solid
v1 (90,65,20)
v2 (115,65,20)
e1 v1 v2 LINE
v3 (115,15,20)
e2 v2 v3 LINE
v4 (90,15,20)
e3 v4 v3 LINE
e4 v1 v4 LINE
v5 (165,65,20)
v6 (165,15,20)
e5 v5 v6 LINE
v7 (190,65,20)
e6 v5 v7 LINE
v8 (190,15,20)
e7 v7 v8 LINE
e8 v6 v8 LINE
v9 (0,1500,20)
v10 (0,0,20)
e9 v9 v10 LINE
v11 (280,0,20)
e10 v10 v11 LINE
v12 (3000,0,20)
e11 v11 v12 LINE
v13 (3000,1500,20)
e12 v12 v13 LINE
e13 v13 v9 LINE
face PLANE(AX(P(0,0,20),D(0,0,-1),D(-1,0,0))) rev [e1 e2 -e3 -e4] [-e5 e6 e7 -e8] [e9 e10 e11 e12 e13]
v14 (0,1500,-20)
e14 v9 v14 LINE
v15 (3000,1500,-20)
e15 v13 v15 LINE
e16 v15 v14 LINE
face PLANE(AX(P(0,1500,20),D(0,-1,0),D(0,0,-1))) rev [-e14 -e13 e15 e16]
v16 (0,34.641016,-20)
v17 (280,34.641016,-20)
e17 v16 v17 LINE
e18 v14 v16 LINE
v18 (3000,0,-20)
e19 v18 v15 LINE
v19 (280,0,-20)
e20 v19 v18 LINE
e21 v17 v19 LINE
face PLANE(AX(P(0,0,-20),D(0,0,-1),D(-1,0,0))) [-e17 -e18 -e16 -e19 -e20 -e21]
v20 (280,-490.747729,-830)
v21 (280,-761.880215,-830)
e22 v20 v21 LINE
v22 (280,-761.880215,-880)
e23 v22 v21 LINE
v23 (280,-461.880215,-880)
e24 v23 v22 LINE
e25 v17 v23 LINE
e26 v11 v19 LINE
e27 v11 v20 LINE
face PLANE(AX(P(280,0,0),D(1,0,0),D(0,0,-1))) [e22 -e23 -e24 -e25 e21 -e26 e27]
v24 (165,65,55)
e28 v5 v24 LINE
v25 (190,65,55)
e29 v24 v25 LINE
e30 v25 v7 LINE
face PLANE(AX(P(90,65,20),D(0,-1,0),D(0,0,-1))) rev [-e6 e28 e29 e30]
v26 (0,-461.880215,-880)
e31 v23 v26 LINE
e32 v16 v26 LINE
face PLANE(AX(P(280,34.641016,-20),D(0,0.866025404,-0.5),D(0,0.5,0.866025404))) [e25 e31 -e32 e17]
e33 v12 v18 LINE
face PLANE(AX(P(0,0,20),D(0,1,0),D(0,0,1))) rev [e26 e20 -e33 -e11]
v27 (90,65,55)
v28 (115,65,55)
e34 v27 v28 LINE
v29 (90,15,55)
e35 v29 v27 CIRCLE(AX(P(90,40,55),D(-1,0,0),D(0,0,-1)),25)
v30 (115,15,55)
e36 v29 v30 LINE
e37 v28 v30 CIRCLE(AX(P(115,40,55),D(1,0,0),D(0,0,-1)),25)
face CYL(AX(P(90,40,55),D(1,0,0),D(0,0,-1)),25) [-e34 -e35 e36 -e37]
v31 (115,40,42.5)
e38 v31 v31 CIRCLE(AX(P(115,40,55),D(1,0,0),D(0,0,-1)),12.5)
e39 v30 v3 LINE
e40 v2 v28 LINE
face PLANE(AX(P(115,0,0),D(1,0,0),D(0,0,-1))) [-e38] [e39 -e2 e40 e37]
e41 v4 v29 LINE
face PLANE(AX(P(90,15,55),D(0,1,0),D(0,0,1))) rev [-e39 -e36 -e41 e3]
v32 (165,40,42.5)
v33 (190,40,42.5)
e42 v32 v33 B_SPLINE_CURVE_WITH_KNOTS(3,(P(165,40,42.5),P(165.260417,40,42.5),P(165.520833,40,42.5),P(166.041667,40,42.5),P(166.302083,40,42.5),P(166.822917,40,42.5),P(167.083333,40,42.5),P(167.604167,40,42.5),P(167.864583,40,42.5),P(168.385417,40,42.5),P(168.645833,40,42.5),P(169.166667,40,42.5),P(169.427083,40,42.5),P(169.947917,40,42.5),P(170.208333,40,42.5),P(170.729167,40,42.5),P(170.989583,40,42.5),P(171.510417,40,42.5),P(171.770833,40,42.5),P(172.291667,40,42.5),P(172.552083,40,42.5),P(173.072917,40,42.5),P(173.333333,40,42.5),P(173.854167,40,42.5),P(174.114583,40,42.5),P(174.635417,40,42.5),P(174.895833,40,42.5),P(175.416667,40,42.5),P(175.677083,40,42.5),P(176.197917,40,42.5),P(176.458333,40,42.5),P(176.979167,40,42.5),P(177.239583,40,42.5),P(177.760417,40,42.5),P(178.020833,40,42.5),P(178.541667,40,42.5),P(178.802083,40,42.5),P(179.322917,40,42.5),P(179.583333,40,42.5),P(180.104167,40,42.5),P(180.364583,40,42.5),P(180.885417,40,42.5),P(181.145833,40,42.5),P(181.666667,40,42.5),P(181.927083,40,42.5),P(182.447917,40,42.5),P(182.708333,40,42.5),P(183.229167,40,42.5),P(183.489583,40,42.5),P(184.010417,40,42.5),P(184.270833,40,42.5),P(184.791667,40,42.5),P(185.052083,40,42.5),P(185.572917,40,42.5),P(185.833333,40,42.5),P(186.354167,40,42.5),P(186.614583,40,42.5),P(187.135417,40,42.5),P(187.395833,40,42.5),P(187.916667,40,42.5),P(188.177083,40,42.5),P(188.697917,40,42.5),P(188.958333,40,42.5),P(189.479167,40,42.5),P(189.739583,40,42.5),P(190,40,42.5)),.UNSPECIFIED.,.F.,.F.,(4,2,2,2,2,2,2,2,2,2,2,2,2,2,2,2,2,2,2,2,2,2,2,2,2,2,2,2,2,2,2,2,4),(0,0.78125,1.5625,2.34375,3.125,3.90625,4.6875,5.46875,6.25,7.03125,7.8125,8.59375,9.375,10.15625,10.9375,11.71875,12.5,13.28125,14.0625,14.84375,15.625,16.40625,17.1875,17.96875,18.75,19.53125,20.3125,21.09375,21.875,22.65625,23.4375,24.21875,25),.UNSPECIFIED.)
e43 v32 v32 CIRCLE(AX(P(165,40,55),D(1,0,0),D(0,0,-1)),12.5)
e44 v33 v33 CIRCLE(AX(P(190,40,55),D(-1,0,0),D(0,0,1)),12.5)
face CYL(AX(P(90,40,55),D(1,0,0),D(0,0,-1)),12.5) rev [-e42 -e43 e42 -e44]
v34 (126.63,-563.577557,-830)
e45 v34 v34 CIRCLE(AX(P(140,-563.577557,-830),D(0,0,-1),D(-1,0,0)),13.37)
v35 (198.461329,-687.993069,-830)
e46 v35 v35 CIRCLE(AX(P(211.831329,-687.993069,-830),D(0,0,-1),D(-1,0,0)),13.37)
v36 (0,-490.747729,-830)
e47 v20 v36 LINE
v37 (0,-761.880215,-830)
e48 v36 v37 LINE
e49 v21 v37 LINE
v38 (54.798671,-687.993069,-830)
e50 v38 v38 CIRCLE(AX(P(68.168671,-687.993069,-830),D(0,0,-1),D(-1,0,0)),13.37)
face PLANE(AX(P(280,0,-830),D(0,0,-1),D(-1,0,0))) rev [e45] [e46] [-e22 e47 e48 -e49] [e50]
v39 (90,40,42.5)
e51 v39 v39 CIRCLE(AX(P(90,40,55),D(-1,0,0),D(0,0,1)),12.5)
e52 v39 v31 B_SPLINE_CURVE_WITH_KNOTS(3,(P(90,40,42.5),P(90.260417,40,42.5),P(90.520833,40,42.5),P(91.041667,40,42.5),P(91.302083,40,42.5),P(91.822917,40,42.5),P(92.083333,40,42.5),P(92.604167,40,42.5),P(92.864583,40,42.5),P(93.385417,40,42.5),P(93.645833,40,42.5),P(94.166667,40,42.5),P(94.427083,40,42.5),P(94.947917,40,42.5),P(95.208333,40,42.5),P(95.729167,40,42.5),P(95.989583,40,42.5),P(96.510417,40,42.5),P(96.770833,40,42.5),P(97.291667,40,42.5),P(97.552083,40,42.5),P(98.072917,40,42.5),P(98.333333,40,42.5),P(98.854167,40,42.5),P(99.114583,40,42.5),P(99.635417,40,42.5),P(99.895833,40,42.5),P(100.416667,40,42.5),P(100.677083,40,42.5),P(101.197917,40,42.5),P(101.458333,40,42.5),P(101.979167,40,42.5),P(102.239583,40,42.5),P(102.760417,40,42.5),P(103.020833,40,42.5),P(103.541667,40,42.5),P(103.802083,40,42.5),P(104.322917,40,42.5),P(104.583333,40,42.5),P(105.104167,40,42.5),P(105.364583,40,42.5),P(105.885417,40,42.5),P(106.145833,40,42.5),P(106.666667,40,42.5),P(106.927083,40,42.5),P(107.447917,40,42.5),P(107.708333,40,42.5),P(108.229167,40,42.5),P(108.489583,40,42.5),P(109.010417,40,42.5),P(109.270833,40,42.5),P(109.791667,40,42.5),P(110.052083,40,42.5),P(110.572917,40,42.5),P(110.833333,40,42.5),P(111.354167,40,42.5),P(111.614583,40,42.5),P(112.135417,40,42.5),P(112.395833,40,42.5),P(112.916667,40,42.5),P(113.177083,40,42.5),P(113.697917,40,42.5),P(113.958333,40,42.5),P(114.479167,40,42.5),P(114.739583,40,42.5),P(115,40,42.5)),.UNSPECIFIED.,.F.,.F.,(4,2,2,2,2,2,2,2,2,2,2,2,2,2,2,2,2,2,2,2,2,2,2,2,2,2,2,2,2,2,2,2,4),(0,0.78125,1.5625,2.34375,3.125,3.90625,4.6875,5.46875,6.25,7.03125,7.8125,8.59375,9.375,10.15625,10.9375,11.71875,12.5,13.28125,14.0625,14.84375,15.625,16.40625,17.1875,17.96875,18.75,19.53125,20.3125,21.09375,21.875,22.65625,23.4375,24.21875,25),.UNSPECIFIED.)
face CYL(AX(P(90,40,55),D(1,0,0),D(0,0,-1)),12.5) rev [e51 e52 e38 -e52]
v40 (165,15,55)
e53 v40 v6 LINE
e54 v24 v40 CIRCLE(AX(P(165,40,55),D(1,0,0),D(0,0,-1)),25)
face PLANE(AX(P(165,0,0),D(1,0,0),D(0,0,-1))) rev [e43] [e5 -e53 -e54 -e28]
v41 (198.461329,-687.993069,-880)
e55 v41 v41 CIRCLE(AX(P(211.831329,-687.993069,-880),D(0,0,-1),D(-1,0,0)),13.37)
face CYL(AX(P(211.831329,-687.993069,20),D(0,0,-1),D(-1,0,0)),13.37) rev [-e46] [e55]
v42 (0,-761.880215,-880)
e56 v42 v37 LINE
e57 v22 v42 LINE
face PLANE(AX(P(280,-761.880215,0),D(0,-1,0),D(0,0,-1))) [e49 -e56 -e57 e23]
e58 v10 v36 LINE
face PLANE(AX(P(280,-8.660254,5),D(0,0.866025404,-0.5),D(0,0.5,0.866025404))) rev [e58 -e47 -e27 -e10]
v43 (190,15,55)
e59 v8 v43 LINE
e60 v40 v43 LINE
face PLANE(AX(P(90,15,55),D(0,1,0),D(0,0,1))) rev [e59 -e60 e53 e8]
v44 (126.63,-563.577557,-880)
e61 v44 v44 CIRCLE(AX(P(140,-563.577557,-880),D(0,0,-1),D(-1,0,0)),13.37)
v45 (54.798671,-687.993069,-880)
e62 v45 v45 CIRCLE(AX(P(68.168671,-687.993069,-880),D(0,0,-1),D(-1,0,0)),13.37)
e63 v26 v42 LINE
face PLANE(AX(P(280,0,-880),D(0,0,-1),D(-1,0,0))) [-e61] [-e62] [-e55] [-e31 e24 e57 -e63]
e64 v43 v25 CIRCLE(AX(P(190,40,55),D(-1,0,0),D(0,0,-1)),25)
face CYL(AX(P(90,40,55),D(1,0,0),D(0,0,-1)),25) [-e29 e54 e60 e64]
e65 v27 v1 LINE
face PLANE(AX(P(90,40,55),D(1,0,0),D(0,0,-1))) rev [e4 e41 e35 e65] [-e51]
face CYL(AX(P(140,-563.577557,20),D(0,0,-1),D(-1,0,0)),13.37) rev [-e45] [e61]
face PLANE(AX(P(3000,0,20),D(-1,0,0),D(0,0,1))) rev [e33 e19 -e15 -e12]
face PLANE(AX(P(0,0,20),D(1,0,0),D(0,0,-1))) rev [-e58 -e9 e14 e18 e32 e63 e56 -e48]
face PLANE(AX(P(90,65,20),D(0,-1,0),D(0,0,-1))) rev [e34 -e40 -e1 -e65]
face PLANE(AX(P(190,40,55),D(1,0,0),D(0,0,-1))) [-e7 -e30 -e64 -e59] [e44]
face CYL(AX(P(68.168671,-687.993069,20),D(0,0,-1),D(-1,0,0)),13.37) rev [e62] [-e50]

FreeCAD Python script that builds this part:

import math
import FreeCAD as App
import Part
import Sketcher

V = App.Vector
Q = App.Units.Quantity

doc = App.newDocument("Part")
body = doc.addObject("PartDesign::Body", "Body")

# Sketch on XY plane
sketch1 = doc.addObject("Sketcher::SketchObject", "Sketch")
body.addObject(sketch1)
sketch1.AttachmentSupport = (doc.XY_Plane, [""])
sketch1.MapMode = "FlatFace"
sketch1.addGeometry([
    Part.LineSegment(V(0, 1500, 0), V(0, 0, 0)),
    Part.LineSegment(V(0, 0, 0), V(3000, 0, 0)),
    Part.LineSegment(V(3000, 0, 0), V(3000, 1500, 0)),
    Part.LineSegment(V(3000, 1500, 0), V(0, 1500, 0)),
], False)
sketch1.addConstraint([
    Sketcher.Constraint("Coincident", 0, 2, 1, 1),
    Sketcher.Constraint("Coincident", 1, 2, 2, 1),
    Sketcher.Constraint("Coincident", 2, 2, 3, 1),
    Sketcher.Constraint("Coincident", 3, 2, 0, 1),
    Sketcher.Constraint("Vertical", 0),
    Sketcher.Constraint("Horizontal", 1),
    Sketcher.Constraint("Vertical", 2),
    Sketcher.Constraint("Horizontal", 3),
    Sketcher.Constraint("Coincident", 0, 2, -1, 1),
    Sketcher.Constraint("DistanceX", 1, 1, 1, 2, 3000.0),
    Sketcher.Constraint("DistanceY", 0, 2, 0, 1, 1500.0),
])
pad1 = doc.addObject("PartDesign::Pad", "Pad")
body.addObject(pad1)
pad1.Profile = sketch1
pad1.Length = 40
pad1.Midplane = True

# Sketch on YZ plane
sketch2 = doc.addObject("Sketcher::SketchObject", "Sketch001")
body.addObject(sketch2)
sketch2.AttachmentSupport = (doc.YZ_Plane, [""])
sketch2.MapMode = "FlatFace"
sketch2.addGeometry([
    Part.LineSegment(V(-762, -830, 0), V(-762, -880, 0)),  # 0
    Part.LineSegment(V(-762, -880, 0), V(-462, -880, 0)),  # 1
    Part.LineSegment(V(-462, -880, 0), V(58, 20, 0)),  # 2
    Part.LineSegment(V(58, 20, 0), V(0, 20, 0)),  # 3
    Part.LineSegment(V(0, 20, 0), V(-491, -830, 0)),  # 4
    Part.LineSegment(V(-491, -830, 0), V(-762, -830, 0)),  # 5
], False)
sketch2.addConstraint([
    Sketcher.Constraint("Coincident", 0, 2, 1, 1),
    Sketcher.Constraint("Coincident", 1, 2, 2, 1),
    Sketcher.Constraint("Coincident", 2, 2, 3, 1),
    Sketcher.Constraint("Coincident", 3, 2, 4, 1),
    Sketcher.Constraint("Coincident", 4, 2, 5, 1),
    Sketcher.Constraint("Coincident", 5, 2, 0, 1),
    Sketcher.Constraint("Vertical", 0),
    Sketcher.Constraint("Horizontal", 1),
    Sketcher.Constraint("Horizontal", 3),
    Sketcher.Constraint("Horizontal", 5),
    Sketcher.Constraint("PointOnObject", 3, 2, -2),
    Sketcher.Constraint("Parallel", 2, 4),
    Sketcher.Constraint("DistanceX", 1, 1, 1, 2, 300.0),
    Sketcher.Constraint("DistanceY", 0, 2, 0, 1, 50.0),
    Sketcher.Constraint("Angle", 2, Q("60 deg")),
    Sketcher.Constraint("DistanceY", 0, 2, -1, 1, 880.0),
    Sketcher.Constraint("DistanceY", -1, 1, 2, 2, 20.0),
    Sketcher.Constraint("DistanceX", 3, 2, 3, 1, 57.735027),
])
pad2 = doc.addObject("PartDesign::Pad", "Pad001")
body.addObject(pad2)
pad2.Profile = sketch2
pad2.Length = 280

# Sketch on XY plane
sketch3 = doc.addObject("Sketcher::SketchObject", "Sketch002")
body.addObject(sketch3)
sketch3.AttachmentSupport = (doc.XY_Plane, [""])
sketch3.MapMode = "FlatFace"
sketch3.AttachmentOffset = App.Placement(V(0, 0, -880), App.Rotation())
sketch3.addGeometry([
    Part.Circle(V(140, -564, 0), V(0, 0, 1), 13),
    Part.Circle(V(68, -688, 0), V(0, 0, 1), 13),
    Part.Circle(V(212, -688, 0), V(0, 0, 1), 13),
], False)
sketch3.addConstraint([
    Sketcher.Constraint("Equal", 0, 1),
    Sketcher.Constraint("Equal", 1, 2),
    Sketcher.Constraint("Horizontal", 1, 3, 2, 3),
    Sketcher.Constraint("Diameter", 0, 26.74),
    Sketcher.Constraint("DistanceX", -1, 1, 0, 3, 140.0),
    Sketcher.Constraint("DistanceX", -1, 1, 1, 3, 68.168671),
    Sketcher.Constraint("DistanceY", 1, 3, -1, 1, 687.993069),
    Sketcher.Constraint("DistanceX", -1, 1, 2, 3, 211.831329),
    Sketcher.Constraint("DistanceY", 1, 3, 0, 3, 124.415511),
])
pocket1 = doc.addObject("PartDesign::Pocket", "Pocket")
body.addObject(pocket1)
pocket1.Profile = sketch3
pocket1.Type = "ThroughAll"
pocket1.Reversed = True

# Sketch on YZ plane
sketch4 = doc.addObject("Sketcher::SketchObject", "Sketch003")
body.addObject(sketch4)
sketch4.AttachmentSupport = (doc.YZ_Plane, [""])
sketch4.MapMode = "FlatFace"
sketch4.AttachmentOffset = App.Placement(V(0, 0, 140), App.Rotation())
sketch4.addGeometry([
    Part.LineSegment(V(15, 20, 0), V(15, 55, 0)),  # 0
    Part.ArcOfCircle(Part.Circle(V(40, 55, 0), V(0, 0, 1), 25), math.radians(0), math.radians(180)),  # 1
    Part.LineSegment(V(65, 55, 0), V(65, 20, 0)),  # 2
    Part.LineSegment(V(65, 20, 0), V(15, 20, 0)),  # 3
    Part.Circle(V(40, 55, 0), V(0, 0, 1), 12),  # 4
], False)
sketch4.addConstraint([
    Sketcher.Constraint("Tangent", 0, 2, 1, 2),
    Sketcher.Constraint("Tangent", 1, 1, 2, 1),
    Sketcher.Constraint("Coincident", 2, 2, 3, 1),
    Sketcher.Constraint("Coincident", 3, 2, 0, 1),
    Sketcher.Constraint("Vertical", 0),
    Sketcher.Constraint("Vertical", 2),
    Sketcher.Constraint("Horizontal", 3),
    Sketcher.Constraint("Coincident", 4, 3, 1, 3),
    Sketcher.Constraint("Diameter", 4, 25.0),
    Sketcher.Constraint("Radius", 1, 25.0),
    Sketcher.Constraint("DistanceY", 0, 1, 0, 2, 35.0),
    Sketcher.Constraint("DistanceX", -1, 1, 1, 3, 40.0),
    Sketcher.Constraint("DistanceY", -1, 1, 1, 3, 55.0),
])
pad3 = doc.addObject("PartDesign::Pad", "Pad002")
body.addObject(pad3)
pad3.Profile = sketch4
pad3.Length = 100
pad3.Midplane = True

# Sketch on YZ plane
sketch5 = doc.addObject("Sketcher::SketchObject", "Sketch004")
body.addObject(sketch5)
sketch5.AttachmentSupport = (doc.YZ_Plane, [""])
sketch5.MapMode = "FlatFace"
sketch5.AttachmentOffset = App.Placement(V(0, 0, 140), App.Rotation())
sketch5.addGeometry([
    Part.LineSegment(V(86, 20, 0), V(0, 20, 0)),
    Part.LineSegment(V(0, 20, 0), V(0, 94, 0)),
    Part.LineSegment(V(0, 94, 0), V(86, 94, 0)),
    Part.LineSegment(V(86, 94, 0), V(86, 20, 0)),
], False)
sketch5.addConstraint([
    Sketcher.Constraint("Coincident", 0, 2, 1, 1),
    Sketcher.Constraint("Coincident", 1, 2, 2, 1),
    Sketcher.Constraint("Coincident", 2, 2, 3, 1),
    Sketcher.Constraint("Coincident", 3, 2, 0, 1),
    Sketcher.Constraint("Horizontal", 0),
    Sketcher.Constraint("Vertical", 1),
    Sketcher.Constraint("Horizontal", 2),
    Sketcher.Constraint("Vertical", 3),
    Sketcher.Constraint("PointOnObject", 0, 2, -2),
    Sketcher.Constraint("DistanceY", -1, 1, 0, 2, 20.0),
    Sketcher.Constraint("DistanceX", 0, 2, 0, 1, 85.918497),
    Sketcher.Constraint("DistanceY", 1, 1, 1, 2, 73.651657),
])
pocket2 = doc.addObject("PartDesign::Pocket", "Pocket001")
body.addObject(pocket2)
pocket2.Profile = sketch5
pocket2.Length = 50
pocket2.Midplane = True

doc.recompute()
